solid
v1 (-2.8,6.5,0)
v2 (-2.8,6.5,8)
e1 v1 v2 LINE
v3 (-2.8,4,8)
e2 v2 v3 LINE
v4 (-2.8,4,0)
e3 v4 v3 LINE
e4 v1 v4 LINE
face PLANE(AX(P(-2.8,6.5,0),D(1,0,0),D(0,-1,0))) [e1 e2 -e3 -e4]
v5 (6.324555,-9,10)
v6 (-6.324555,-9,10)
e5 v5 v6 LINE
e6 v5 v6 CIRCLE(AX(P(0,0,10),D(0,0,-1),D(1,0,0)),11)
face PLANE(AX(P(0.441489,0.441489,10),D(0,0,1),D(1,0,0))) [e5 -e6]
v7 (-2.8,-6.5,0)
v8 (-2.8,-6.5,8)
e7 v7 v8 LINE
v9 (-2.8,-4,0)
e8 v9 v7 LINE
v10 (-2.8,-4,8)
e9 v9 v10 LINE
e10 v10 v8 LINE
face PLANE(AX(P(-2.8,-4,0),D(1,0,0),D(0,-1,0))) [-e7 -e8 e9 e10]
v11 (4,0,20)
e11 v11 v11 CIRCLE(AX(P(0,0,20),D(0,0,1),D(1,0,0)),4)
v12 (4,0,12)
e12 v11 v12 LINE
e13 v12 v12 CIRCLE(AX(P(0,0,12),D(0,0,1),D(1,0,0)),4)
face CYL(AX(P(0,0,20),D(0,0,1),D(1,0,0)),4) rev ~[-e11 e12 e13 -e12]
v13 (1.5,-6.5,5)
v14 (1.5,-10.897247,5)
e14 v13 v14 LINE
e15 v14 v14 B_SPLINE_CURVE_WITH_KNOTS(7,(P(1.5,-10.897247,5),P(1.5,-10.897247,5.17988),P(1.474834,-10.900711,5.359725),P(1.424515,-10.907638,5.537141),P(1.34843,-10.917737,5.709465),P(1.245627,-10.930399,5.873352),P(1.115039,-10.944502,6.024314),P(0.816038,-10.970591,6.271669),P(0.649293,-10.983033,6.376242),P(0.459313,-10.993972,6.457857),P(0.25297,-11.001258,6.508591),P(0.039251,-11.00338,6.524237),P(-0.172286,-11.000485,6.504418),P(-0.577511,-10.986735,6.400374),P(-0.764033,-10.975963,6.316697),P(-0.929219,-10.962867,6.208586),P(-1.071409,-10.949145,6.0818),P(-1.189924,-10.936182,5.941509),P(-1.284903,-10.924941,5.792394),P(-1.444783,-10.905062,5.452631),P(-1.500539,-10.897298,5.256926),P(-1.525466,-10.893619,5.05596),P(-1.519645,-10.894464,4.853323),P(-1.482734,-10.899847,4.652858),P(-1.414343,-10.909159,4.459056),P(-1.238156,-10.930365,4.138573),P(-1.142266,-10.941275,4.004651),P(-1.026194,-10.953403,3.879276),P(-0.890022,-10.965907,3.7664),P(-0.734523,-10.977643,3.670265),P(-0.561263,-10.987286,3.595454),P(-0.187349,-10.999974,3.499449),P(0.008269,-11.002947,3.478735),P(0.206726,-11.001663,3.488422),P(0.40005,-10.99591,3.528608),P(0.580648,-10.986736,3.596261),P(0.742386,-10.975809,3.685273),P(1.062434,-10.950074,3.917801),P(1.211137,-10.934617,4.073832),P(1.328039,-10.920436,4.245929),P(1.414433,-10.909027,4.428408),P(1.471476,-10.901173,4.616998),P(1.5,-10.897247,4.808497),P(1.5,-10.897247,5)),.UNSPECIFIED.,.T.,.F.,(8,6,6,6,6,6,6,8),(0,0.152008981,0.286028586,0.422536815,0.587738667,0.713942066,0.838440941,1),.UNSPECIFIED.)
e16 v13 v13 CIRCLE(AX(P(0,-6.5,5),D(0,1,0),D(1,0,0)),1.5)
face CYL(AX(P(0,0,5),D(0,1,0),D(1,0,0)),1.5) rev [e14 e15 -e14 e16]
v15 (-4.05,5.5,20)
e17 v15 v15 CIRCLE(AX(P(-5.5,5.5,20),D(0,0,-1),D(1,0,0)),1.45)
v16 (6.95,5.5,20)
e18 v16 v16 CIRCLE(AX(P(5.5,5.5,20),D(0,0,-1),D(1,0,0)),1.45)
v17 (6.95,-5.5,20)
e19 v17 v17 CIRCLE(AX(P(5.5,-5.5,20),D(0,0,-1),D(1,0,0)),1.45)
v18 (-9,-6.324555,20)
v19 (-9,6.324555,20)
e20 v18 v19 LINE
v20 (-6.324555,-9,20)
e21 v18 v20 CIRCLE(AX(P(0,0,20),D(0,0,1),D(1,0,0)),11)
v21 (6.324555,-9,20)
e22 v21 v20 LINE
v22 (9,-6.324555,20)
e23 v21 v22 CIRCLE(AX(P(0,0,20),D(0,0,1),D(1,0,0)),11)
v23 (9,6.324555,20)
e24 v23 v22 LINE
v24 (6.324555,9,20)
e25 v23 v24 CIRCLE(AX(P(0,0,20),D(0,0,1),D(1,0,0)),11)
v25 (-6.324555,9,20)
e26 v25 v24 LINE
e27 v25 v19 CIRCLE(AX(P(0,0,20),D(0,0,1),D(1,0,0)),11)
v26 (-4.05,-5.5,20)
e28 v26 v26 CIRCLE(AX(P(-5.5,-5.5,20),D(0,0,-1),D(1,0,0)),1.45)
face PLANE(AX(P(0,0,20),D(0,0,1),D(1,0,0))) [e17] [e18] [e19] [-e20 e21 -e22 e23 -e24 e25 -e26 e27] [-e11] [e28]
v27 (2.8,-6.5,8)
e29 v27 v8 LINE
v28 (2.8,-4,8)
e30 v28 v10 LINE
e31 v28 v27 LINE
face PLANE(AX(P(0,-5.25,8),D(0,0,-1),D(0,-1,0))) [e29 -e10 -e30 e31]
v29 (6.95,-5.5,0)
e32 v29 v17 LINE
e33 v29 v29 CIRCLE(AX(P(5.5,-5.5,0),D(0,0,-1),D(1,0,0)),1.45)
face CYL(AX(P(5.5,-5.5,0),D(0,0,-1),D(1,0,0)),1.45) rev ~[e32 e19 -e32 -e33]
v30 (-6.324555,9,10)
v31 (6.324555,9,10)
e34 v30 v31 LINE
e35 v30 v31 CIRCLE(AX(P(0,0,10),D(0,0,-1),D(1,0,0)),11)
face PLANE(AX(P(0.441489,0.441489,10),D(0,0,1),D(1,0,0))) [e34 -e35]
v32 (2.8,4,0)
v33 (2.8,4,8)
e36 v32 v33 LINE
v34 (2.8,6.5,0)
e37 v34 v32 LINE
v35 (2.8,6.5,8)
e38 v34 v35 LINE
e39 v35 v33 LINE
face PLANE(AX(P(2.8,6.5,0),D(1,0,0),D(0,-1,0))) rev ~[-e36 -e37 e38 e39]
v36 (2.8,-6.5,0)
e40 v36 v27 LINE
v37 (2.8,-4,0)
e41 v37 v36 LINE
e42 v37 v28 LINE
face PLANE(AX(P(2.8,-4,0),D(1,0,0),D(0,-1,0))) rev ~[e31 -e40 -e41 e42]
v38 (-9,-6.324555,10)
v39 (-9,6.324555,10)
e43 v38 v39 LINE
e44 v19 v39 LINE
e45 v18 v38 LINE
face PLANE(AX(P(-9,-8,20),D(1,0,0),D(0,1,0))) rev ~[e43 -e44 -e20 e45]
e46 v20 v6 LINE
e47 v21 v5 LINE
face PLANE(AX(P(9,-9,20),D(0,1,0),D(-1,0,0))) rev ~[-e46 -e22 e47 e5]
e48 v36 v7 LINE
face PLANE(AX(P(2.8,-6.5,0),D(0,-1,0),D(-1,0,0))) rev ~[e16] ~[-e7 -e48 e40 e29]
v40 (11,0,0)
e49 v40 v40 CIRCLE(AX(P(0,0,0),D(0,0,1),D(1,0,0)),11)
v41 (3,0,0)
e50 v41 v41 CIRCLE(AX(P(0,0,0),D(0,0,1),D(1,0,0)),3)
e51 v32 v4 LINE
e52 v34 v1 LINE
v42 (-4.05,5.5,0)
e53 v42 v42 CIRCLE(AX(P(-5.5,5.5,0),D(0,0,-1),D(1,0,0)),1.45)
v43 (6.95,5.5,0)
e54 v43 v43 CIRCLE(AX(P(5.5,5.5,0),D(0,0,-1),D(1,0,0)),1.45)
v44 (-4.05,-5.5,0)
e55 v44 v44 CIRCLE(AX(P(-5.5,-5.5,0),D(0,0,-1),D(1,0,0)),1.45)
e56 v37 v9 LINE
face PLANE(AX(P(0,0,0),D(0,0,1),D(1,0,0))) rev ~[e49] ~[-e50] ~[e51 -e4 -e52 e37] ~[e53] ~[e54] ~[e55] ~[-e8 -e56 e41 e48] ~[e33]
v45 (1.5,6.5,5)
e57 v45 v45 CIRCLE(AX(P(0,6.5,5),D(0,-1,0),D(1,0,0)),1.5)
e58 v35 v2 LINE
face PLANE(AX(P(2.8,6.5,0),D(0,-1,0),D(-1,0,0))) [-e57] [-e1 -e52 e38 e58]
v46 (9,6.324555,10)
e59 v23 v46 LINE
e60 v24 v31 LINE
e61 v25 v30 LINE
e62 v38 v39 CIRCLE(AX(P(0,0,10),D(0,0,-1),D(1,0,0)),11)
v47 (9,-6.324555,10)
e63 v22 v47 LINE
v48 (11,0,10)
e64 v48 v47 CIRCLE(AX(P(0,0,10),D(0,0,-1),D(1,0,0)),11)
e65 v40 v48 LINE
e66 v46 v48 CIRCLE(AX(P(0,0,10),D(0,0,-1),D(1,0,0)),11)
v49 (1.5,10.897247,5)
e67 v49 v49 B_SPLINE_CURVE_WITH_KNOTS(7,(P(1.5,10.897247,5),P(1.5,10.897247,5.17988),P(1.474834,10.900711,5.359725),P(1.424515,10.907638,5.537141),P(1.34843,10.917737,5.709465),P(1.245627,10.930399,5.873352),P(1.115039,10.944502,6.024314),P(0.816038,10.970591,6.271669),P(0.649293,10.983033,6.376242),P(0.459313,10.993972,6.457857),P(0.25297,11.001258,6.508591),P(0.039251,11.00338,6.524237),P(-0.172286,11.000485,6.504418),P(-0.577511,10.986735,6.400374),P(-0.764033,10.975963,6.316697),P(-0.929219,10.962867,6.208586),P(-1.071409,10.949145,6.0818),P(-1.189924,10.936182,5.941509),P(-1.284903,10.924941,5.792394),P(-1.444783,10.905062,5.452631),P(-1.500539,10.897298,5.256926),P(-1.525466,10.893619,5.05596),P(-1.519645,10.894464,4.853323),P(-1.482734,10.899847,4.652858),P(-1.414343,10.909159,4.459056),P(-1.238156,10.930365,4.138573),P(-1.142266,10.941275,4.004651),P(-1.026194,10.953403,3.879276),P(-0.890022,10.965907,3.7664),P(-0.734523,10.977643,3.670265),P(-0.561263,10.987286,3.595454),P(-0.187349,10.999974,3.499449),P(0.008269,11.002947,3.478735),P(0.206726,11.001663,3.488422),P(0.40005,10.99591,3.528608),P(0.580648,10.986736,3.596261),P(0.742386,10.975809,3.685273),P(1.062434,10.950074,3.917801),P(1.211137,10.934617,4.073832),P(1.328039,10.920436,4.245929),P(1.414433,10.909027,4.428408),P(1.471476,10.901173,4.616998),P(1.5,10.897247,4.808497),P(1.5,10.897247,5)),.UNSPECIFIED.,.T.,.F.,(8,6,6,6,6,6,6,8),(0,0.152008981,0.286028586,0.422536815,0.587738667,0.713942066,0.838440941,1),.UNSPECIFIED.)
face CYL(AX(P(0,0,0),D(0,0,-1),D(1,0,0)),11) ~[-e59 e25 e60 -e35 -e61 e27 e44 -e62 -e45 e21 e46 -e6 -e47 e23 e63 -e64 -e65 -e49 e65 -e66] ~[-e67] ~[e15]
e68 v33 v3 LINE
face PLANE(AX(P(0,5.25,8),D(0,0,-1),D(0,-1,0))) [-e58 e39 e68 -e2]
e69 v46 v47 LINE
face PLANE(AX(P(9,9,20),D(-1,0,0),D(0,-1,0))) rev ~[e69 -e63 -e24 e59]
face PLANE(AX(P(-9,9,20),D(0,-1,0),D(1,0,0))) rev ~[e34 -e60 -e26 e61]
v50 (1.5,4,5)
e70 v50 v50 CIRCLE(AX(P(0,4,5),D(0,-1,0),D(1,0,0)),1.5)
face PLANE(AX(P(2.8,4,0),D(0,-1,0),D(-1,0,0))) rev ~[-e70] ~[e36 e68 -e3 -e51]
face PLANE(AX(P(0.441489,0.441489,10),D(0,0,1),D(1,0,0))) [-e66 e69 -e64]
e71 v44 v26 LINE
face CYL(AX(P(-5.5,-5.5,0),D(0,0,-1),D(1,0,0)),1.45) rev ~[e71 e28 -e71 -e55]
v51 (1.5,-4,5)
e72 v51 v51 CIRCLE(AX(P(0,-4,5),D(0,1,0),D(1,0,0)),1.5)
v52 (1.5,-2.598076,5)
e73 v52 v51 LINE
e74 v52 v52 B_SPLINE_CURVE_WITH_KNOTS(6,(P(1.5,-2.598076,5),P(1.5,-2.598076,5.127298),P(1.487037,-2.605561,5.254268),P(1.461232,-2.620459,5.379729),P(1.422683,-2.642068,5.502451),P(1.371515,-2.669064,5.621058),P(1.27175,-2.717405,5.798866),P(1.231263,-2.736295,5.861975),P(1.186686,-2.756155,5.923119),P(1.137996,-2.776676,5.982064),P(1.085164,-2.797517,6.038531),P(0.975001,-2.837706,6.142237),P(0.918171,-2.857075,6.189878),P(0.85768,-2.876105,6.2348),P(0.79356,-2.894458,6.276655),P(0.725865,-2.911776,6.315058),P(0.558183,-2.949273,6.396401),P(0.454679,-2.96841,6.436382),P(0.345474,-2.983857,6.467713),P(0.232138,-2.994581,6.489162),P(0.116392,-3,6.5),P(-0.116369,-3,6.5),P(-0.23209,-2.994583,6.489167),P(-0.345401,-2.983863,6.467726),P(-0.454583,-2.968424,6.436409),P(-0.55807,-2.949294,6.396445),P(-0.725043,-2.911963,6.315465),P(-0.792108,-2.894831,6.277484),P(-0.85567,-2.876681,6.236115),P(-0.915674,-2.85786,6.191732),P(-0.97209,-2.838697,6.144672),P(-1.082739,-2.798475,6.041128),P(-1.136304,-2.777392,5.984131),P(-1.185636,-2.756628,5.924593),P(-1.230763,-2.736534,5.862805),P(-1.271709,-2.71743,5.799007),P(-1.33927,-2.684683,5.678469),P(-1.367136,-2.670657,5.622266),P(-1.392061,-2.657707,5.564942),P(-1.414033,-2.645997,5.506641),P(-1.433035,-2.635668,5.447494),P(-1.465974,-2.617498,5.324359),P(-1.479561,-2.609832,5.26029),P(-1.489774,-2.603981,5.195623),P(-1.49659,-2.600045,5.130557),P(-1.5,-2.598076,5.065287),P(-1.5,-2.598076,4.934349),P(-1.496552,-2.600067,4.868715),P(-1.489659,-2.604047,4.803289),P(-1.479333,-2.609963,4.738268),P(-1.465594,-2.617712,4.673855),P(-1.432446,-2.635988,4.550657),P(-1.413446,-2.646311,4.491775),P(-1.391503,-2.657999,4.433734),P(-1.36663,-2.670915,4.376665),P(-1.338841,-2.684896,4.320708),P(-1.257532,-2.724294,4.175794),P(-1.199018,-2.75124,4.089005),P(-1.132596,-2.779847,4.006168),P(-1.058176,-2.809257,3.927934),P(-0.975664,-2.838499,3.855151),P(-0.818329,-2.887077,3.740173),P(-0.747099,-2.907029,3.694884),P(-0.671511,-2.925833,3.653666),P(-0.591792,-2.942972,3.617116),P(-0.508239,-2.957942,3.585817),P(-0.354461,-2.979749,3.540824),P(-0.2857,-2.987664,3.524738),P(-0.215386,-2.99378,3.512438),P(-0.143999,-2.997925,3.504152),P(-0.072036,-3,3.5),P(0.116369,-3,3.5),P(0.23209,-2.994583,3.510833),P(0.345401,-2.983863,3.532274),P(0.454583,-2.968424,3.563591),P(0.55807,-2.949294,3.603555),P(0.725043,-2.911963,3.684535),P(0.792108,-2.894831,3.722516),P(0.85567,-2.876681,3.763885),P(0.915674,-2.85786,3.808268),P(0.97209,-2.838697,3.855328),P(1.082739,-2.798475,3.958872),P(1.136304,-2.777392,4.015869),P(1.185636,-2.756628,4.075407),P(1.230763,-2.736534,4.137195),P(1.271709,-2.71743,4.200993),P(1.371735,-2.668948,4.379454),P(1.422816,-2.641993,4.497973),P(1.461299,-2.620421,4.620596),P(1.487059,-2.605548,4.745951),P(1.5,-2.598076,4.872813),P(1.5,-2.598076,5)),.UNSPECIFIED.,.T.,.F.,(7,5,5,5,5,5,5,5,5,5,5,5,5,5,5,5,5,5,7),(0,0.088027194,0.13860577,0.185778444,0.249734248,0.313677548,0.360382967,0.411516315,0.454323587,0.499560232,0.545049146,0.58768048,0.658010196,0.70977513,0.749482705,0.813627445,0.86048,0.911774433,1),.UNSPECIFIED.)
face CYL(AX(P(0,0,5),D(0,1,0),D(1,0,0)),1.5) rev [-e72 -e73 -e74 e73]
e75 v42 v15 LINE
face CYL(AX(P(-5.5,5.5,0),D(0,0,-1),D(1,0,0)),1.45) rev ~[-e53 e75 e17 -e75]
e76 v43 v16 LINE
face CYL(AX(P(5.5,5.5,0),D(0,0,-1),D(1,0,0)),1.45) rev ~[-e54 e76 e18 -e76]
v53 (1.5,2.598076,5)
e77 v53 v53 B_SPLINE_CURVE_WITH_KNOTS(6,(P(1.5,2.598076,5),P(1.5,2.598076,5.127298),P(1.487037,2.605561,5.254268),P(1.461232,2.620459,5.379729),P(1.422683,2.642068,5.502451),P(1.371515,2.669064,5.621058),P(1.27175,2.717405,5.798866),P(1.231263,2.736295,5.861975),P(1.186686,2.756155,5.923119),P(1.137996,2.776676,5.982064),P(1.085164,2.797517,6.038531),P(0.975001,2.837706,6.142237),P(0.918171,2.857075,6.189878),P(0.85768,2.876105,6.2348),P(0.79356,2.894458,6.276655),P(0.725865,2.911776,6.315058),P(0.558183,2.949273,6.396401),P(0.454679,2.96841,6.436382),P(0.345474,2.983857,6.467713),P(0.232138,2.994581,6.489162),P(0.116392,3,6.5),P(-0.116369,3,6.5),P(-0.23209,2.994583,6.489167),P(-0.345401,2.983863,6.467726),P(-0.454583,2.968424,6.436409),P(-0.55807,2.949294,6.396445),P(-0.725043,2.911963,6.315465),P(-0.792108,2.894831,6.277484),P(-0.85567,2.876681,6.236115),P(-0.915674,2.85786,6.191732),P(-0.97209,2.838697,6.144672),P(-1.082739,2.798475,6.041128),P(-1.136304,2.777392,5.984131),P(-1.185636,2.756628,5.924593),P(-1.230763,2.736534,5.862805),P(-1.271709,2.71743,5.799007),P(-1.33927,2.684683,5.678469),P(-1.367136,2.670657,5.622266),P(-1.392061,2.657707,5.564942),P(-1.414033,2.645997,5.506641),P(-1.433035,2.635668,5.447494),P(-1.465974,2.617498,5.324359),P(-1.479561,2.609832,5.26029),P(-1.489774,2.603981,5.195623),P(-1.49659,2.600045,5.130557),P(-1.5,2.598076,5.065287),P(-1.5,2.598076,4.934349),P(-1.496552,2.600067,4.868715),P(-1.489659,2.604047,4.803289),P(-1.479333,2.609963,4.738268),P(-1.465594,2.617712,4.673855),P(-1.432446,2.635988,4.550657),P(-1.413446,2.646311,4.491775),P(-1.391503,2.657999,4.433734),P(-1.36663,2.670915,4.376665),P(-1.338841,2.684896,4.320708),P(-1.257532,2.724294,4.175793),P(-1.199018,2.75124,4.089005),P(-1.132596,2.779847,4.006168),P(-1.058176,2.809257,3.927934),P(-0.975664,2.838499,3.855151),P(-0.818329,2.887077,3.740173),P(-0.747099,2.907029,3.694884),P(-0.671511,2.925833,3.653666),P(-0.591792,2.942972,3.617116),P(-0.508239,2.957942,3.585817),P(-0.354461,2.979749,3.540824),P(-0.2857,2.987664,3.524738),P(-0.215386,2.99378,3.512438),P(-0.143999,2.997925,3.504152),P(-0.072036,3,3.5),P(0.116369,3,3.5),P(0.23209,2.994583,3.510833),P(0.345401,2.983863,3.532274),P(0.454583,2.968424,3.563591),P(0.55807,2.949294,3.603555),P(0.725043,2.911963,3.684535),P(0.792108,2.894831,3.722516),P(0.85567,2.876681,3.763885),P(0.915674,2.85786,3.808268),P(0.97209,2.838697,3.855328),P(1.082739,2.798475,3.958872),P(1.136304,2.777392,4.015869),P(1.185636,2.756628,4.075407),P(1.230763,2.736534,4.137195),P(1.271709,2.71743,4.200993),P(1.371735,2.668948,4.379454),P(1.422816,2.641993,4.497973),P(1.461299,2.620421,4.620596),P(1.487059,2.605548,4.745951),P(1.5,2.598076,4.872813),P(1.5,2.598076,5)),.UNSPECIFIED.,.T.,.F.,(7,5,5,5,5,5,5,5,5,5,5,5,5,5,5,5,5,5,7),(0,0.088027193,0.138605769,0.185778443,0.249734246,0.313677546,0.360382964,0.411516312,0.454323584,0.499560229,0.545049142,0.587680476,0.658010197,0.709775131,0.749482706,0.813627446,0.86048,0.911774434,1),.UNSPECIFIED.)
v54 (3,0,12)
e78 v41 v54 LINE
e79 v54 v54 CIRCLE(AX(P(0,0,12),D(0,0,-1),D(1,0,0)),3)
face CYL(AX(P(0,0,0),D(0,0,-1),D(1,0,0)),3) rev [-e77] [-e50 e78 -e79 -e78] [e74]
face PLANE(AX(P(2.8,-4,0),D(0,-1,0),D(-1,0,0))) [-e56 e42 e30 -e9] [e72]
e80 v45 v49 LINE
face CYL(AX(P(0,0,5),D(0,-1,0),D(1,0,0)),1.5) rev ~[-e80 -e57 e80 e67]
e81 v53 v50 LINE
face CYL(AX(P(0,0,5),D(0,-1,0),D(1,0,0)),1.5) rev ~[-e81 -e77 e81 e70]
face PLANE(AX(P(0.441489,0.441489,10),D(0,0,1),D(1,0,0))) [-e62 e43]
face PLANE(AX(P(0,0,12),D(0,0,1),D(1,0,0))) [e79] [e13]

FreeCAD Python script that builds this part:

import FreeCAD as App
import Part
import Sketcher
Q = App.Units.Quantity

doc = App.newDocument("Part")
body = doc.addObject("PartDesign::Body", "Body")

sketch1 = body.newObject("Sketcher::SketchObject", "Sketch")
sketch1.AttachmentSupport = (doc.getObject("XY_Plane"), [""])
sketch1.MapMode = "FlatFace"
sketch1.addGeometry([
    Part.Circle(App.Vector(0, 0, 0), App.Vector(0, 0, 1), 11),
    Part.Circle(App.Vector(0, 0, 0), App.Vector(0, 0, 1), 3),
], False)
sketch1.addConstraint([
    Sketcher.Constraint("Coincident", 0, 3, -1, 1),
    Sketcher.Constraint("Coincident", 1, 3, -1, 1),
    Sketcher.Constraint("Diameter", 0, Q("22 mm")),
    Sketcher.Constraint("Diameter", 1, Q("6 mm")),
])
pad1 = body.newObject("PartDesign::Pad", "Pad")
pad1.Profile = sketch1
pad1.Length = 20

sketch2 = body.newObject("Sketcher::SketchObject", "Sketch001")
sketch2.AttachmentSupport = (doc.getObject("XY_Plane"), [""])
sketch2.MapMode = "FlatFace"
sketch2.AttachmentOffset = App.Placement(App.Vector(0, 0, 20), App.Rotation())
sketch2.addGeometry([
    Part.LineSegment(App.Vector(-15, -8, 0), App.Vector(-9, -8, 0)),
    Part.LineSegment(App.Vector(-9, -8, 0), App.Vector(-9, 9, 0)),
    Part.LineSegment(App.Vector(-9, 9, 0), App.Vector(9, 9, 0)),
    Part.LineSegment(App.Vector(9, 9, 0), App.Vector(9, -9, 0)),
    Part.LineSegment(App.Vector(9, -9, 0), App.Vector(-8, -9, 0)),
    Part.LineSegment(App.Vector(-8, -9, 0), App.Vector(-8, -15, 0)),
    Part.LineSegment(App.Vector(-8, -15, 0), App.Vector(15, -15, 0)),
    Part.LineSegment(App.Vector(15, -15, 0), App.Vector(15, 15, 0)),
    Part.LineSegment(App.Vector(15, 15, 0), App.Vector(-15, 15, 0)),
    Part.LineSegment(App.Vector(-15, 15, 0), App.Vector(-15, -8, 0)),
], False)
sketch2.addConstraint([
    Sketcher.Constraint("Coincident", 0, 2, 1, 1),
    Sketcher.Constraint("Coincident", 1, 2, 2, 1),
    Sketcher.Constraint("Coincident", 2, 2, 3, 1),
    Sketcher.Constraint("Coincident", 3, 2, 4, 1),
    Sketcher.Constraint("Coincident", 4, 2, 5, 1),
    Sketcher.Constraint("Coincident", 5, 2, 6, 1),
    Sketcher.Constraint("Coincident", 6, 2, 7, 1),
    Sketcher.Constraint("Coincident", 7, 2, 8, 1),
    Sketcher.Constraint("Coincident", 8, 2, 9, 1),
    Sketcher.Constraint("Coincident", 9, 2, 0, 1),
    Sketcher.Constraint("Horizontal", 0),
    Sketcher.Constraint("Vertical", 1),
    Sketcher.Constraint("Horizontal", 2),
    Sketcher.Constraint("Vertical", 3),
    Sketcher.Constraint("Horizontal", 4),
    Sketcher.Constraint("Vertical", 5),
    Sketcher.Constraint("Horizontal", 6),
    Sketcher.Constraint("Vertical", 7),
    Sketcher.Constraint("Horizontal", 8),
    Sketcher.Constraint("Vertical", 9),
    Sketcher.Constraint("Symmetric", 1, 2, 3, 2, -1, 1),
    Sketcher.Constraint("Symmetric", 6, 2, 8, 2, -1, 1),
    Sketcher.Constraint("Equal", 4, 1),
    Sketcher.Constraint("Equal", 2, 3),
    Sketcher.Constraint("Equal", 0, 5),
    Sketcher.Constraint("DistanceX", 0, 1, 0, 2, Q("6 mm")),
    Sketcher.Constraint("DistanceX", 2, 1, 2, 2, Q("18 mm")),
    Sketcher.Constraint("DistanceX", 4, 2, 4, 1, Q("17 mm")),
])
pocket1 = body.newObject("PartDesign::Pocket", "Pocket")
pocket1.Profile = sketch2
pocket1.Length = 10

sketch3 = body.newObject("Sketcher::SketchObject", "Sketch002")
sketch3.AttachmentSupport = (doc.getObject("XY_Plane"), [""])
sketch3.MapMode = "FlatFace"
sketch3.AttachmentOffset = App.Placement(App.Vector(0, 0, 20), App.Rotation())
sketch3.addGeometry(Part.Circle(App.Vector(0, 0, 0), App.Vector(0, 0, 1), 4), False)
sketch3.addConstraint([
    Sketcher.Constraint("Coincident", 0, 3, -1, 1),
    Sketcher.Constraint("Diameter", 0, Q("8 mm")),
])
pocket2 = body.newObject("PartDesign::Pocket", "Pocket001")
pocket2.Profile = sketch3
pocket2.Length = 8

sketch4 = body.newObject("Sketcher::SketchObject", "Sketch003")
sketch4.AttachmentSupport = (doc.getObject("XZ_Plane"), [""])
sketch4.MapMode = "FlatFace"
sketch4.addGeometry(Part.Circle(App.Vector(0, 5, 0), App.Vector(0, 0, 1), 1.5), False)
sketch4.addConstraint([
    Sketcher.Constraint("PointOnObject", 0, 3, -2),
    Sketcher.Constraint("Diameter", 0, Q("3 mm")),
    Sketcher.Constraint("DistanceY", -1, 1, 0, 3, Q("5 mm")),
])
pocket3 = body.newObject("PartDesign::Pocket", "Pocket002")
pocket3.Profile = sketch4
pocket3.Type = "ThroughAll"
pocket3.Midplane = True

sketch5 = body.newObject("Sketcher::SketchObject", "Sketch004")
sketch5.AttachmentSupport = (doc.getObject("XY_Plane"), [""])
sketch5.MapMode = "FlatFace"
sketch5.addGeometry([
    Part.LineSegment(App.Vector(-2.8, 6.5, 0), App.Vector(2.8, 6.5, 0)),
    Part.LineSegment(App.Vector(2.8, 6.5, 0), App.Vector(2.8, 4, 0)),
    Part.LineSegment(App.Vector(2.8, 4, 0), App.Vector(-2.8, 4, 0)),
    Part.LineSegment(App.Vector(-2.8, 4, 0), App.Vector(-2.8, 6.5, 0)),
    Part.LineSegment(App.Vector(-2.8, -4, 0), App.Vector(2.8, -4, 0)),
    Part.LineSegment(App.Vector(2.8, -4, 0), App.Vector(2.8, -6.5, 0)),
    Part.LineSegment(App.Vector(2.8, -6.5, 0), App.Vector(-2.8, -6.5, 0)),
    Part.LineSegment(App.Vector(-2.8, -6.5, 0), App.Vector(-2.8, -4, 0)),
], False)
sketch5.addConstraint([
    Sketcher.Constraint("Coincident", 0, 2, 1, 1),
    Sketcher.Constraint("Coincident", 1, 2, 2, 1),
    Sketcher.Constraint("Coincident", 2, 2, 3, 1),
    Sketcher.Constraint("Coincident", 3, 2, 0, 1),
    Sketcher.Constraint("Coincident", 4, 2, 5, 1),
    Sketcher.Constraint("Coincident", 5, 2, 6, 1),
    Sketcher.Constraint("Coincident", 6, 2, 7, 1),
    Sketcher.Constraint("Coincident", 7, 2, 4, 1),
    Sketcher.Constraint("Horizontal", 0),
    Sketcher.Constraint("Vertical", 1),
    Sketcher.Constraint("Horizontal", 2),
    Sketcher.Constraint("Vertical", 3),
    Sketcher.Constraint("Horizontal", 4),
    Sketcher.Constraint("Vertical", 5),
    Sketcher.Constraint("Horizontal", 6),
    Sketcher.Constraint("Vertical", 7),
    Sketcher.Constraint("Symmetric", 2, 2, 4, 2, -1, 1),
    Sketcher.Constraint("Symmetric", 0, 2, 6, 2, -1, 1),
    Sketcher.Constraint("Vertical", 1, 2, 4, 2),
    Sketcher.Constraint("DistanceX", 0, 1, 0, 2, Q("5.6 mm")),
    Sketcher.Constraint("DistanceY", 1, 2, 1, 1, Q("2.5 mm")),
    Sketcher.Constraint("DistanceY", -1, 1, 1, 2, Q("4 mm")),
])
pocket4 = body.newObject("PartDesign::Pocket", "Pocket003")
pocket4.Profile = sketch5
pocket4.Length = 8
pocket4.Reversed = True

sketch6 = body.newObject("Sketcher::SketchObject", "Sketch005")
sketch6.AttachmentSupport = (doc.getObject("XY_Plane"), [""])
sketch6.MapMode = "FlatFace"
sketch6.addGeometry([
    Part.Circle(App.Vector(-5.5, -5.5, 0), App.Vector(0, 0, 1), 1.45),
    Part.Circle(App.Vector(-5.5, 5.5, 0), App.Vector(0, 0, 1), 1.45),
    Part.Circle(App.Vector(5.5, 5.5, 0), App.Vector(0, 0, 1), 1.45),
    Part.Circle(App.Vector(5.5, -5.5, 0), App.Vector(0, 0, 1), 1.45),
], False)
sketch6.addConstraint([
    Sketcher.Constraint("Equal", 0, 1),
    Sketcher.Constraint("Equal", 1, 2),
    Sketcher.Constraint("Equal", 2, 3),
    Sketcher.Constraint("Symmetric", 0, 3, 2, 3, -1, 1),
    Sketcher.Constraint("Symmetric", 1, 3, 3, 3, -1, 1),
    Sketcher.Constraint("Symmetric", 1, 3, 2, 3, -2),
    Sketcher.Constraint("Diameter", 0, Q("2.9 mm")),
    Sketcher.Constraint("DistanceY", 0, 3, 1, 3, Q("11 mm")),
    Sketcher.Constraint("DistanceX", 1, 3, 2, 3, Q("11 mm")),
])
pocket5 = body.newObject("PartDesign::Pocket", "Pocket004")
pocket5.Profile = sketch6
pocket5.Type = "ThroughAll"
pocket5.Reversed = True

doc.recompute()
